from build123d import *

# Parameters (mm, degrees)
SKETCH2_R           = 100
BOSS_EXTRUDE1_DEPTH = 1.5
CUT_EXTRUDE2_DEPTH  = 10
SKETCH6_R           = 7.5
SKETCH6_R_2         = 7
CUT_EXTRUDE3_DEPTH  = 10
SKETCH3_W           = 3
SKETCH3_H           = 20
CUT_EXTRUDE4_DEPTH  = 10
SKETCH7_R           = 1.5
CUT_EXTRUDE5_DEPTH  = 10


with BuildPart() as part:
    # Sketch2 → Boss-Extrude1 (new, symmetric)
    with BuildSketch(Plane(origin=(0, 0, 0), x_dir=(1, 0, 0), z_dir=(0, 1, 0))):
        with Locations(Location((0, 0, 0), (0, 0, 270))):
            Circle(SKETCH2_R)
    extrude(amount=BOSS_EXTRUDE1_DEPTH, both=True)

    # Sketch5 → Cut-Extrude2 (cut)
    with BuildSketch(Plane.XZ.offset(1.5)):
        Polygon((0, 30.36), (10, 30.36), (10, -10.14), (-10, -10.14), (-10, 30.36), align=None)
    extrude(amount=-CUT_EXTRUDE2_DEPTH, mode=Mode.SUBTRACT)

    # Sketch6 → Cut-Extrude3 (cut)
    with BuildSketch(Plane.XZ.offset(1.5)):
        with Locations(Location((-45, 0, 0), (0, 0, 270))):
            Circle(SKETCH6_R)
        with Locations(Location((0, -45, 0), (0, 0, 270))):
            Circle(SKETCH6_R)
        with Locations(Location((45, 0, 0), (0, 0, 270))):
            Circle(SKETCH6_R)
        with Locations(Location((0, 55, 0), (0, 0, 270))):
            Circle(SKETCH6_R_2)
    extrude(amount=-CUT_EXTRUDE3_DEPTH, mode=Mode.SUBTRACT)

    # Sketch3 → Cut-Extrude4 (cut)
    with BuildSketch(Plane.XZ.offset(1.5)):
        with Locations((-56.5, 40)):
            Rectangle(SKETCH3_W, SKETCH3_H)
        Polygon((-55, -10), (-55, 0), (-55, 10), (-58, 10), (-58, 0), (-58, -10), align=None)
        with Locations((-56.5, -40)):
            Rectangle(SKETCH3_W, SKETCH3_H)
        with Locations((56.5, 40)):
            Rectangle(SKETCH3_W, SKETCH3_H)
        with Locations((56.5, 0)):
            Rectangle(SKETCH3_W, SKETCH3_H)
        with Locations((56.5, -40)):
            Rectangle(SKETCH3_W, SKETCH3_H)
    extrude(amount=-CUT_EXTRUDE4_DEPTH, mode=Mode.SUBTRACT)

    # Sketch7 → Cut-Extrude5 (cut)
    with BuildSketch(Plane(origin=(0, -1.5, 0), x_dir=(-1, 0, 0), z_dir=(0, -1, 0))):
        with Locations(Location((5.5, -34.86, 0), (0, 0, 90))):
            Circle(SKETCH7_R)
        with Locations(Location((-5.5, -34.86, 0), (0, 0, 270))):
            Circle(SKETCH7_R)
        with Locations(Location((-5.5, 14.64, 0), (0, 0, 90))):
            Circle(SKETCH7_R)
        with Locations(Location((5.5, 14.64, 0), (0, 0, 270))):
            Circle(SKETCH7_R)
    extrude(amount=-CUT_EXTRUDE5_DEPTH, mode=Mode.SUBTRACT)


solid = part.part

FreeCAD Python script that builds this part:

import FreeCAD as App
import Part
import Sketcher
from FreeCAD import Vector

doc = App.newDocument("Part")
body = doc.addObject("PartDesign::Body", "Body")

# Sketch on XZ plane
sketch1 = body.newObject("Sketcher::SketchObject", "Sketch")
sketch1.AttachmentSupport = (doc.getObject("XZ_Plane"), [""])
sketch1.MapMode = "FlatFace"
sketch1.addGeometry(Part.Circle(Vector(0, 0, 0), Vector(0, 0, 1), 100), False)
sketch1.addConstraint([
    Sketcher.Constraint("Coincident", 0, 3, -1, 1),
    Sketcher.Constraint("Diameter", 0, 200.0),
])
pad1 = body.newObject("PartDesign::Pad", "Pad")
pad1.Profile = sketch1
pad1.Length = 3
pad1.Midplane = True

# Sketch on XZ plane
sketch2 = body.newObject("Sketcher::SketchObject", "Sketch001")
sketch2.AttachmentSupport = (doc.getObject("XZ_Plane"), [""])
sketch2.MapMode = "FlatFace"
sketch2.AttachmentOffset = App.Placement(Vector(0, 0, 1.5), App.Rotation())
sketch2.addGeometry([
    Part.LineSegment(Vector(10, 30, 0), Vector(-10, 30, 0)),
    Part.LineSegment(Vector(-10, 30, 0), Vector(-10, -10, 0)),
    Part.LineSegment(Vector(-10, -10, 0), Vector(10, -10, 0)),
    Part.LineSegment(Vector(10, -10, 0), Vector(10, 30, 0)),
], False)
sketch2.addConstraint([
    Sketcher.Constraint("Coincident", 0, 2, 1, 1),
    Sketcher.Constraint("Coincident", 1, 2, 2, 1),
    Sketcher.Constraint("Coincident", 2, 2, 3, 1),
    Sketcher.Constraint("Coincident", 3, 2, 0, 1),
    Sketcher.Constraint("Horizontal", 0),
    Sketcher.Constraint("Vertical", 1),
    Sketcher.Constraint("Horizontal", 2),
    Sketcher.Constraint("Vertical", 3),
    Sketcher.Constraint("DistanceX", 0, 2, 0, 1, 20.0),
    Sketcher.Constraint("DistanceY", 1, 2, 1, 1, 40.5),
    Sketcher.Constraint("DistanceX", 0, 2, -1, 1, 10.0),
    Sketcher.Constraint("DistanceY", -1, 1, 0, 2, 30.36),
])
pocket1 = body.newObject("PartDesign::Pocket", "Pocket")
pocket1.Profile = sketch2
pocket1.Length = 10

# Sketch on XZ plane
sketch3 = body.newObject("Sketcher::SketchObject", "Sketch002")
sketch3.AttachmentSupport = (doc.getObject("XZ_Plane"), [""])
sketch3.MapMode = "FlatFace"
sketch3.AttachmentOffset = App.Placement(Vector(0, 0, 1.5), App.Rotation())
sketch3.addGeometry([
    Part.Circle(Vector(-45, 0, 0), Vector(0, 0, 1), 8),
    Part.Circle(Vector(0, -45, 0), Vector(0, 0, 1), 8),
    Part.Circle(Vector(45, 0, 0), Vector(0, 0, 1), 8),
    Part.Circle(Vector(0, 55, 0), Vector(0, 0, 1), 7),
], False)
sketch3.addConstraint([
    Sketcher.Constraint("Equal", 0, 1),
    Sketcher.Constraint("Equal", 1, 2),
    Sketcher.Constraint("Symmetric", 0, 3, 2, 3, -1, 1),
    Sketcher.Constraint("PointOnObject", 0, 3, -1),
    Sketcher.Constraint("PointOnObject", 1, 3, -2),
    Sketcher.Constraint("PointOnObject", 3, 3, -2),
    Sketcher.Constraint("Diameter", 0, 15.0),
    Sketcher.Constraint("Diameter", 3, 14.0),
    Sketcher.Constraint("DistanceX", 0, 3, -1, 1, 45.0),
    Sketcher.Constraint("DistanceY", 1, 3, -1, 1, 45.0),
    Sketcher.Constraint("DistanceY", -1, 1, 3, 3, 55.0),
])
pocket2 = body.newObject("PartDesign::Pocket", "Pocket001")
pocket2.Profile = sketch3
pocket2.Length = 10

# Sketch on XZ plane
sketch4 = body.newObject("Sketcher::SketchObject", "Sketch003")
sketch4.AttachmentSupport = (doc.getObject("XZ_Plane"), [""])
sketch4.MapMode = "FlatFace"
sketch4.AttachmentOffset = App.Placement(Vector(0, 0, 1.5), App.Rotation())
sketch4.addGeometry([
    Part.LineSegment(Vector(-58, 50, 0), Vector(-58, 30, 0)),  # 0
    Part.LineSegment(Vector(-58, 30, 0), Vector(-55, 30, 0)),  # 1
    Part.LineSegment(Vector(-55, 30, 0), Vector(-55, 50, 0)),  # 2
    Part.LineSegment(Vector(-55, 50, 0), Vector(-58, 50, 0)),  # 3
    Part.LineSegment(Vector(-55, -10, 0), Vector(-55, 10, 0)),  # 4
    Part.LineSegment(Vector(-55, 10, 0), Vector(-58, 10, 0)),  # 5
    Part.LineSegment(Vector(-58, 10, 0), Vector(-58, -10, 0)),  # 6
    Part.LineSegment(Vector(-58, -10, 0), Vector(-55, -10, 0)),  # 7
    Part.LineSegment(Vector(-58, -30, 0), Vector(-58, -50, 0)),  # 8
    Part.LineSegment(Vector(-58, -50, 0), Vector(-55, -50, 0)),  # 9
    Part.LineSegment(Vector(-55, -50, 0), Vector(-55, -30, 0)),  # 10
    Part.LineSegment(Vector(-55, -30, 0), Vector(-58, -30, 0)),  # 11
    Part.LineSegment(Vector(55, 50, 0), Vector(55, 30, 0)),  # 12
    Part.LineSegment(Vector(55, 30, 0), Vector(58, 30, 0)),  # 13
    Part.LineSegment(Vector(58, 30, 0), Vector(58, 50, 0)),  # 14
    Part.LineSegment(Vector(58, 50, 0), Vector(55, 50, 0)),  # 15
    Part.LineSegment(Vector(55, 10, 0), Vector(55, -10, 0)),  # 16
    Part.LineSegment(Vector(55, -10, 0), Vector(58, -10, 0)),  # 17
    Part.LineSegment(Vector(58, -10, 0), Vector(58, 10, 0)),  # 18
    Part.LineSegment(Vector(58, 10, 0), Vector(55, 10, 0)),  # 19
    Part.LineSegment(Vector(55, -30, 0), Vector(55, -50, 0)),  # 20
    Part.LineSegment(Vector(55, -50, 0), Vector(58, -50, 0)),  # 21
    Part.LineSegment(Vector(58, -50, 0), Vector(58, -30, 0)),  # 22
    Part.LineSegment(Vector(58, -30, 0), Vector(55, -30, 0)),  # 23
], False)
sketch4.addConstraint([
    Sketcher.Constraint("Coincident", 0, 2, 1, 1),
    Sketcher.Constraint("Coincident", 1, 2, 2, 1),
    Sketcher.Constraint("Coincident", 2, 2, 3, 1),
    Sketcher.Constraint("Coincident", 3, 2, 0, 1),
    Sketcher.Constraint("Coincident", 4, 2, 5, 1),
    Sketcher.Constraint("Coincident", 5, 2, 6, 1),
    Sketcher.Constraint("Coincident", 6, 2, 7, 1),
    Sketcher.Constraint("Coincident", 7, 2, 4, 1),
    Sketcher.Constraint("Coincident", 8, 2, 9, 1),
    Sketcher.Constraint("Coincident", 9, 2, 10, 1),
    Sketcher.Constraint("Coincident", 10, 2, 11, 1),
    Sketcher.Constraint("Coincident", 11, 2, 8, 1),
    Sketcher.Constraint("Coincident", 12, 2, 13, 1),
    Sketcher.Constraint("Coincident", 13, 2, 14, 1),
    Sketcher.Constraint("Coincident", 14, 2, 15, 1),
    Sketcher.Constraint("Coincident", 15, 2, 12, 1),
    Sketcher.Constraint("Coincident", 16, 2, 17, 1),
    Sketcher.Constraint("Coincident", 17, 2, 18, 1),
    Sketcher.Constraint("Coincident", 18, 2, 19, 1),
    Sketcher.Constraint("Coincident", 19, 2, 16, 1),
    Sketcher.Constraint("Coincident", 20, 2, 21, 1),
    Sketcher.Constraint("Coincident", 21, 2, 22, 1),
    Sketcher.Constraint("Coincident", 22, 2, 23, 1),
    Sketcher.Constraint("Coincident", 23, 2, 20, 1),
    Sketcher.Constraint("Vertical", 0),
    Sketcher.Constraint("Horizontal", 1),
    Sketcher.Constraint("Vertical", 2),
    Sketcher.Constraint("Horizontal", 3),
    Sketcher.Constraint("Vertical", 4),
    Sketcher.Constraint("Horizontal", 5),
    Sketcher.Constraint("Vertical", 6),
    Sketcher.Constraint("Horizontal", 7),
    Sketcher.Constraint("Vertical", 8),
    Sketcher.Constraint("Horizontal", 9),
    Sketcher.Constraint("Vertical", 10),
    Sketcher.Constraint("Horizontal", 11),
    Sketcher.Constraint("Vertical", 12),
    Sketcher.Constraint("Horizontal", 13),
    Sketcher.Constraint("Vertical", 14),
    Sketcher.Constraint("Horizontal", 15),
    Sketcher.Constraint("Vertical", 16),
    Sketcher.Constraint("Horizontal", 17),
    Sketcher.Constraint("Vertical", 18),
    Sketcher.Constraint("Horizontal", 19),
    Sketcher.Constraint("Vertical", 20),
    Sketcher.Constraint("Horizontal", 21),
    Sketcher.Constraint("Vertical", 22),
    Sketcher.Constraint("Horizontal", 23),
    Sketcher.Constraint("Symmetric", 10, 2, 12, 2, -1, 1),
    Sketcher.Constraint("Symmetric", 8, 2, 14, 2, -1, 1),
    Sketcher.Constraint("Symmetric", 4, 2, 16, 2, -1, 1),
    Sketcher.Constraint("Symmetric", 6, 2, 18, 2, -1, 1),
    Sketcher.Constraint("Symmetric", 2, 2, 20, 2, -1, 1),
    Sketcher.Constraint("Symmetric", 0, 2, 22, 2, -1, 1),
    Sketcher.Constraint("Symmetric", 1, 2, 12, 2, -2),
    Sketcher.Constraint("Symmetric", 3, 2, 14, 2, -2),
    Sketcher.Constraint("Horizontal", 7, 2, 16, 2),
    Sketcher.Constraint("Vertical", 2, 2, 4, 2),
    Sketcher.Constraint("Vertical", 3, 2, 5, 2),
    Sketcher.Constraint("Equal", 2, 4),
    Sketcher.Constraint("DistanceX", 1, 1, 1, 2, 3.0),
    Sketcher.Constraint("DistanceY", 0, 2, 0, 1, 20.0),
    Sketcher.Constraint("DistanceX", 0, 2, -1, 1, 58.0),
    Sketcher.Constraint("DistanceY", -1, 1, 0, 2, 30.0),
])
pocket3 = body.newObject("PartDesign::Pocket", "Pocket002")
pocket3.Profile = sketch4
pocket3.Length = 10

# Sketch on XZ plane
sketch5 = body.newObject("Sketcher::SketchObject", "Sketch004")
sketch5.AttachmentSupport = (doc.getObject("XZ_Plane"), [""])
sketch5.MapMode = "FlatFace"
sketch5.AttachmentOffset = App.Placement(Vector(0, 0, 1.5), App.Rotation())
sketch5.addGeometry([
    Part.Circle(Vector(-5.5, 34.9, 0), Vector(0, 0, 1), 1.5),
    Part.Circle(Vector(5.5, 34.9, 0), Vector(0, 0, 1), 1.5),
    Part.Circle(Vector(5.5, -14.6, 0), Vector(0, 0, 1), 1.5),
    Part.Circle(Vector(-5.5, -14.6, 0), Vector(0, 0, 1), 1.5),
], False)
sketch5.addConstraint([
    Sketcher.Constraint("Equal", 0, 1),
    Sketcher.Constraint("Equal", 1, 2),
    Sketcher.Constraint("Equal", 2, 3),
    Sketcher.Constraint("Symmetric", 0, 3, 1, 3, -2),
    Sketcher.Constraint("Symmetric", 2, 3, 3, 3, -2),
    Sketcher.Constraint("Vertical", 1, 3, 2, 3),
    Sketcher.Constraint("Diameter", 0, 3.0),
    Sketcher.Constraint("DistanceX", 0, 3, 1, 3, 11.0),
    Sketcher.Constraint("DistanceY", 2, 3, 1, 3, 49.5),
    Sketcher.Constraint("DistanceY", -1, 1, 0, 3, 34.86),
])
pocket4 = body.newObject("PartDesign::Pocket", "Pocket003")
pocket4.Profile = sketch5
pocket4.Length = 10

doc.recompute()
